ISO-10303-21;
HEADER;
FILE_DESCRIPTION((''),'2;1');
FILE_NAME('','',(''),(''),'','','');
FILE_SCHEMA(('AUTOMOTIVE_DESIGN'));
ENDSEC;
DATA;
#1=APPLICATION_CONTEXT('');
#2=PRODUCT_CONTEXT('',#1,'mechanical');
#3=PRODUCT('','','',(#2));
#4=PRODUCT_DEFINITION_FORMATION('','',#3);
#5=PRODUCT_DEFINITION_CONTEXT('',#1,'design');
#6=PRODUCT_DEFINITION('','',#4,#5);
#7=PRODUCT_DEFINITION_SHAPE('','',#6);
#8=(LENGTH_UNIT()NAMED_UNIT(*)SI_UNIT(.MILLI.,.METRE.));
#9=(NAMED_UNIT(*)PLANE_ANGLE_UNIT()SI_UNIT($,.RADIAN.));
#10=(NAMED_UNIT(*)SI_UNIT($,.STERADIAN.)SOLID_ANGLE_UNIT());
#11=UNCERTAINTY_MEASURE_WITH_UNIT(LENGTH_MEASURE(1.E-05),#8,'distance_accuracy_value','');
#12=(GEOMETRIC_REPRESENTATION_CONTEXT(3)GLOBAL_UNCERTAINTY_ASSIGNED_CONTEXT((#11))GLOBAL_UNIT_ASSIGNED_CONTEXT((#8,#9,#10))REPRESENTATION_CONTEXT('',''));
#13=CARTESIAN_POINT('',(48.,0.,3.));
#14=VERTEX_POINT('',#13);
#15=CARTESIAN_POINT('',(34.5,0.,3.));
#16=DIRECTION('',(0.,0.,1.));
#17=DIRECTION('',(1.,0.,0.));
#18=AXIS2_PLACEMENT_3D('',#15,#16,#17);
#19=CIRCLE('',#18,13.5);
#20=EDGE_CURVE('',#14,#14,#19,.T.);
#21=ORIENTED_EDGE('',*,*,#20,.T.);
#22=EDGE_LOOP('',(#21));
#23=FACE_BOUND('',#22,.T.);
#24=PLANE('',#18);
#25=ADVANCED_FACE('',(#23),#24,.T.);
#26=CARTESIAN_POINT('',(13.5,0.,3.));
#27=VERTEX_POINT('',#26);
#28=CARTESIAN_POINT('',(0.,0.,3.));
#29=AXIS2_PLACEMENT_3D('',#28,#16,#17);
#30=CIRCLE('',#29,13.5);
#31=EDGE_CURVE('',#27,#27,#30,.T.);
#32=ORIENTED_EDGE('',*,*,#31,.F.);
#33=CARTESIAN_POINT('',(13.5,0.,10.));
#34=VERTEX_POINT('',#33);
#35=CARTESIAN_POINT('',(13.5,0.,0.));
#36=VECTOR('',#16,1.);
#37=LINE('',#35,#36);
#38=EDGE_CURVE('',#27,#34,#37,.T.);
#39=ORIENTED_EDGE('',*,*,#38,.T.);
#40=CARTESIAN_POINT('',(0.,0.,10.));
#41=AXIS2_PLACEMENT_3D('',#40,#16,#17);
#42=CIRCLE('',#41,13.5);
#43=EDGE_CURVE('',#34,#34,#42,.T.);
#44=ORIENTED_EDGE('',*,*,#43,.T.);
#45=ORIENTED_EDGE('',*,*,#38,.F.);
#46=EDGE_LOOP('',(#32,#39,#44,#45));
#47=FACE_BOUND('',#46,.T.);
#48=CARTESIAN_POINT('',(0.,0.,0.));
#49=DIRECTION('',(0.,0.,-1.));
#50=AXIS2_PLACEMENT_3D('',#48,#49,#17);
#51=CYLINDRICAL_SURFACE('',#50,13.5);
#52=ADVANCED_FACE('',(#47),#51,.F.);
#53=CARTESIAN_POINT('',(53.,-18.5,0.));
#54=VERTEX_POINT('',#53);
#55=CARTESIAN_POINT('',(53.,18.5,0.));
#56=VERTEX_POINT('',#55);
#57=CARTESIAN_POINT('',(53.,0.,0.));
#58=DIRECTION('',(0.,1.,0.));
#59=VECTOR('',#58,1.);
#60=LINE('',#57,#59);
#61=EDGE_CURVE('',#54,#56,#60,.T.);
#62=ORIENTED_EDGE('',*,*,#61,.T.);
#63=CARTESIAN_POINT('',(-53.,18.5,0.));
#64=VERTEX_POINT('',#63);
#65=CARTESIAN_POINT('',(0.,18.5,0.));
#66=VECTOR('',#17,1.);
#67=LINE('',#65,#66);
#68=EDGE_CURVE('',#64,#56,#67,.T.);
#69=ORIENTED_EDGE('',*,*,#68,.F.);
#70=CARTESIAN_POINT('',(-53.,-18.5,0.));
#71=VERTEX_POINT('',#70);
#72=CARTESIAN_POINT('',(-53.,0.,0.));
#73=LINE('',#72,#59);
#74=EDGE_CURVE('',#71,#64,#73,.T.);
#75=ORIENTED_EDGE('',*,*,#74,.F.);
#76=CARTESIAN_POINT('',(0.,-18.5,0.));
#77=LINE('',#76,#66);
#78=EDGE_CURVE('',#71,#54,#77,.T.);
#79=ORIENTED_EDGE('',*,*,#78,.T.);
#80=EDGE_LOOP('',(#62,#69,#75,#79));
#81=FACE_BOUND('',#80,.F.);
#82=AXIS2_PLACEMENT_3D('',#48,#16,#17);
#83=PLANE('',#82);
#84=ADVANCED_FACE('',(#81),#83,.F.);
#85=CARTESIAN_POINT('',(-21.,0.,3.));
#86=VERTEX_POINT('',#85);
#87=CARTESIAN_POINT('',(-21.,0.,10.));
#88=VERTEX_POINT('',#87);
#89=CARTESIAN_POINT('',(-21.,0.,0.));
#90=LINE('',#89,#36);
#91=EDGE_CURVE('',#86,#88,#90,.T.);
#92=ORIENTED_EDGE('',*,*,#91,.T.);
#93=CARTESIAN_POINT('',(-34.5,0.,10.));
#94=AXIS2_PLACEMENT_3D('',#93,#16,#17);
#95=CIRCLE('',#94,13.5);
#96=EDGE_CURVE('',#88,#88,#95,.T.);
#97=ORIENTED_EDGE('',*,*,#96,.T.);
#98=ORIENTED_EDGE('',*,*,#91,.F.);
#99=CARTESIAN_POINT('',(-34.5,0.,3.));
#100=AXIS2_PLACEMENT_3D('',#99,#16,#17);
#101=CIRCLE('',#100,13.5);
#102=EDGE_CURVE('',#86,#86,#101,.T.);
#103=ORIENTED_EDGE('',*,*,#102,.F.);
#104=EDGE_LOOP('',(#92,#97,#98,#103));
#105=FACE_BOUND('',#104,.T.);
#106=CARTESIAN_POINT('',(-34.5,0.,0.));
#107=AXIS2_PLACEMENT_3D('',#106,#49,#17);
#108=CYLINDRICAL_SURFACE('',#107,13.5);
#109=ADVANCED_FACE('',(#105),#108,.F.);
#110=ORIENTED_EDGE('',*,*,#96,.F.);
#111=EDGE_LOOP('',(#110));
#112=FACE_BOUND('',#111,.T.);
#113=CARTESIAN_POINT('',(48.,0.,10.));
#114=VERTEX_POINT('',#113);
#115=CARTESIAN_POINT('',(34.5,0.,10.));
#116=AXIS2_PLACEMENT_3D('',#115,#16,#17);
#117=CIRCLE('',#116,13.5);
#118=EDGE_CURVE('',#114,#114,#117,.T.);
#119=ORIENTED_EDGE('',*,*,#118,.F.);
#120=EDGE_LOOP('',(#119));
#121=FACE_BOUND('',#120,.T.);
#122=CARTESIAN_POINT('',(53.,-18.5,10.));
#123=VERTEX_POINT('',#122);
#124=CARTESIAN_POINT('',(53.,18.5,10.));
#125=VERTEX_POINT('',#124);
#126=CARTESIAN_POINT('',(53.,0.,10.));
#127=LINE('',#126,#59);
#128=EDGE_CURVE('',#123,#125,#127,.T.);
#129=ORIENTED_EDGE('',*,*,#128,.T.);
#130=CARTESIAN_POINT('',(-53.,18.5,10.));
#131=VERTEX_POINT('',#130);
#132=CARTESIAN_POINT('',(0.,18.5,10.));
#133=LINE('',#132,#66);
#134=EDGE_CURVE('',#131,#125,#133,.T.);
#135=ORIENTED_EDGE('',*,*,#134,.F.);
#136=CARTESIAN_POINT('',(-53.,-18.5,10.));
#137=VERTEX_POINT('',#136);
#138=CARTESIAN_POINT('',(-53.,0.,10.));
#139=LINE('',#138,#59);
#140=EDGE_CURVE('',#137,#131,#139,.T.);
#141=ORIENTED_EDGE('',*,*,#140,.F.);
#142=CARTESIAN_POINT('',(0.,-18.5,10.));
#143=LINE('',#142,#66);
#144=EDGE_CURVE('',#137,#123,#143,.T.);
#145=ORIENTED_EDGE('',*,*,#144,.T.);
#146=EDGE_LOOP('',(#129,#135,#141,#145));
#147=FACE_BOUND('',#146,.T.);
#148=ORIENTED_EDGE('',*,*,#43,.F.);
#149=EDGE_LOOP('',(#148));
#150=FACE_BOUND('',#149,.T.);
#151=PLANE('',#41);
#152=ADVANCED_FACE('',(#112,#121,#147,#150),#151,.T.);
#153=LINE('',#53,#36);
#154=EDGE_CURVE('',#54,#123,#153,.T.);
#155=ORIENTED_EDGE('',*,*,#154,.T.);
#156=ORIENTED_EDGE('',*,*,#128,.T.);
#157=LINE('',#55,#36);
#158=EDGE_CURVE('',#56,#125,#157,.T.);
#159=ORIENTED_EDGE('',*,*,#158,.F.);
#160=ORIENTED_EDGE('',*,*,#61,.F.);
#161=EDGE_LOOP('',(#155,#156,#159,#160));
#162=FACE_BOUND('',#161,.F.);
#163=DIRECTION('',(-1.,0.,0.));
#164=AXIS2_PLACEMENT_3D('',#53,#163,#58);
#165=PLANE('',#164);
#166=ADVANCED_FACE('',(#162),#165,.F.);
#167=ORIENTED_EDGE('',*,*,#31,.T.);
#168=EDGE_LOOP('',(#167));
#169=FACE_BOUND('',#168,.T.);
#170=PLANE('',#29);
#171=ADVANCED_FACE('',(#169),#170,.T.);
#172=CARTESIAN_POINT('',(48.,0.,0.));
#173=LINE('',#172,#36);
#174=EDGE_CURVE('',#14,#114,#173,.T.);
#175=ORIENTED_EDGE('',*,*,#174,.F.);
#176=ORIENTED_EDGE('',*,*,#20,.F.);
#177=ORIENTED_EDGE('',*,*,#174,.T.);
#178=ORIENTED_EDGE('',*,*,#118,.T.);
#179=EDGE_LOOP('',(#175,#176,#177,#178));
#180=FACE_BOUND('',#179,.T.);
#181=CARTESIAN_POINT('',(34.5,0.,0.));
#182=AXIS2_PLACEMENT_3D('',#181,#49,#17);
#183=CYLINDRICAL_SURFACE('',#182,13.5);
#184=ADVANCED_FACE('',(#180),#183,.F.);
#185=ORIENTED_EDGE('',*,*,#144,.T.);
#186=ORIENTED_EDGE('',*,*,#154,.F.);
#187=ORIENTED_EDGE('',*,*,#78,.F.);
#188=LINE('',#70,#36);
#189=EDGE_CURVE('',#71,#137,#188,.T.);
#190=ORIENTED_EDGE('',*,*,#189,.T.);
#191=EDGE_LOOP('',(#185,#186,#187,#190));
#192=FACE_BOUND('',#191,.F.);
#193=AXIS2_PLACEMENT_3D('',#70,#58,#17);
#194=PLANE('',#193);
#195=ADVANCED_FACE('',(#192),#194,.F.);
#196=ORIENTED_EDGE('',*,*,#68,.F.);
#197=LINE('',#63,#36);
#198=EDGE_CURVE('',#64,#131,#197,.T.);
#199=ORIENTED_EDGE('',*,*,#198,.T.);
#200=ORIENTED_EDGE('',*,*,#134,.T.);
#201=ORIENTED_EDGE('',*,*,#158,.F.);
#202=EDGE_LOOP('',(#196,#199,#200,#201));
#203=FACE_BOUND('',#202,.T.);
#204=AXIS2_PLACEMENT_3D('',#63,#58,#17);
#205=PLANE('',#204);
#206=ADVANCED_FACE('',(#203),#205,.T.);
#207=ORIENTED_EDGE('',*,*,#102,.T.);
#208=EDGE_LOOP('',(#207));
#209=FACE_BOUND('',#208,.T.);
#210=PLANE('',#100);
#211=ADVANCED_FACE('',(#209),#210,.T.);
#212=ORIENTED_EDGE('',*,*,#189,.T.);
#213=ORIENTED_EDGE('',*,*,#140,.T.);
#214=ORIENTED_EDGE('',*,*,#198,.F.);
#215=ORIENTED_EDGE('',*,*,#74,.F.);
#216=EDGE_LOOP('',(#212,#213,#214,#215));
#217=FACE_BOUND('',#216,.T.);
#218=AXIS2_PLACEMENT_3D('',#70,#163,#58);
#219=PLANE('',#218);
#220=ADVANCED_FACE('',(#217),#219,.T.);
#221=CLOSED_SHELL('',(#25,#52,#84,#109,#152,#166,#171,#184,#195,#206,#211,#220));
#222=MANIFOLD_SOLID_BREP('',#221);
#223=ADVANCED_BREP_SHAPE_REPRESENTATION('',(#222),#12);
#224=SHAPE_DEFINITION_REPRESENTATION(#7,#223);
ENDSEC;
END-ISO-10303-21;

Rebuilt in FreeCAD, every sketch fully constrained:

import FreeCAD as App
import Part
import Sketcher
from FreeCAD import Vector

doc = App.newDocument("Part")
body = doc.addObject("PartDesign::Body", "Body")

# Sketch on XY plane
sketch1 = doc.addObject("Sketcher::SketchObject", "Sketch")
body.addObject(sketch1)
sketch1.AttachmentSupport = (doc.XY_Plane, [""])
sketch1.MapMode = "FlatFace"
sketch1.addGeometry([
    Part.LineSegment(Vector(-53, 18, 0), Vector(-53, -18, 0)),  # 0
    Part.LineSegment(Vector(-53, -18, 0), Vector(53, -18, 0)),  # 1
    Part.LineSegment(Vector(53, -18, 0), Vector(53, 18, 0)),  # 2
    Part.LineSegment(Vector(53, 18, 0), Vector(-53, 18, 0)),  # 3
    Part.Circle(Vector(-34, 0, 0), Vector(0, 0, 1), 14),  # 4
    Part.Circle(Vector(0, 0, 0), Vector(0, 0, 1), 14),  # 5
    Part.Circle(Vector(34, 0, 0), Vector(0, 0, 1), 14),  # 6
], False)
sketch1.addConstraint([
    Sketcher.Constraint("Coincident", 0, 2, 1, 1),
    Sketcher.Constraint("Coincident", 1, 2, 2, 1),
    Sketcher.Constraint("Coincident", 2, 2, 3, 1),
    Sketcher.Constraint("Coincident", 3, 2, 0, 1),
    Sketcher.Constraint("Vertical", 0),
    Sketcher.Constraint("Horizontal", 1),
    Sketcher.Constraint("Vertical", 2),
    Sketcher.Constraint("Horizontal", 3),
    Sketcher.Constraint("Coincident", 5, 3, -1, 1),
    Sketcher.Constraint("Equal", 4, 5),
    Sketcher.Constraint("Equal", 5, 6),
    Sketcher.Constraint("Symmetric", 4, 3, 6, 3, -1, 1),
    Sketcher.Constraint("Symmetric", 0, 2, 2, 2, -1, 1),
    Sketcher.Constraint("PointOnObject", 4, 3, -1),
    Sketcher.Constraint("Diameter", 4, 27.0),
    Sketcher.Constraint("DistanceX", 1, 1, 1, 2, 106.0),
    Sketcher.Constraint("DistanceY", 0, 2, 0, 1, 37.0),
    Sketcher.Constraint("DistanceX", 4, 3, 6, 3, 69.0),
])
pad1 = doc.addObject("PartDesign::Pad", "Pad")
body.addObject(pad1)
pad1.Profile = sketch1
pad1.Length = 10

# Sketch on XY plane
sketch2 = doc.addObject("Sketcher::SketchObject", "Sketch001")
body.addObject(sketch2)
sketch2.AttachmentSupport = (doc.XY_Plane, [""])
sketch2.MapMode = "FlatFace"
sketch2.addGeometry([
    Part.Circle(Vector(0, 0, 0), Vector(0, 0, 1), 14),
    Part.Circle(Vector(-34, 0, 0), Vector(0, 0, 1), 14),
    Part.Circle(Vector(34, 0, 0), Vector(0, 0, 1), 14),
], False)
sketch2.addConstraint([
    Sketcher.Constraint("Coincident", 0, 3, -1, 1),
    Sketcher.Constraint("Equal", 0, 1),
    Sketcher.Constraint("Equal", 1, 2),
    Sketcher.Constraint("Symmetric", 1, 3, 2, 3, -1, 1),
    Sketcher.Constraint("PointOnObject", 1, 3, -1),
    Sketcher.Constraint("Diameter", 0, 27.0),
    Sketcher.Constraint("DistanceX", 1, 3, 2, 3, 69.0),
])
pad2 = doc.addObject("PartDesign::Pad", "Pad001")
body.addObject(pad2)
pad2.Profile = sketch2
pad2.Length = 3

doc.recompute()
